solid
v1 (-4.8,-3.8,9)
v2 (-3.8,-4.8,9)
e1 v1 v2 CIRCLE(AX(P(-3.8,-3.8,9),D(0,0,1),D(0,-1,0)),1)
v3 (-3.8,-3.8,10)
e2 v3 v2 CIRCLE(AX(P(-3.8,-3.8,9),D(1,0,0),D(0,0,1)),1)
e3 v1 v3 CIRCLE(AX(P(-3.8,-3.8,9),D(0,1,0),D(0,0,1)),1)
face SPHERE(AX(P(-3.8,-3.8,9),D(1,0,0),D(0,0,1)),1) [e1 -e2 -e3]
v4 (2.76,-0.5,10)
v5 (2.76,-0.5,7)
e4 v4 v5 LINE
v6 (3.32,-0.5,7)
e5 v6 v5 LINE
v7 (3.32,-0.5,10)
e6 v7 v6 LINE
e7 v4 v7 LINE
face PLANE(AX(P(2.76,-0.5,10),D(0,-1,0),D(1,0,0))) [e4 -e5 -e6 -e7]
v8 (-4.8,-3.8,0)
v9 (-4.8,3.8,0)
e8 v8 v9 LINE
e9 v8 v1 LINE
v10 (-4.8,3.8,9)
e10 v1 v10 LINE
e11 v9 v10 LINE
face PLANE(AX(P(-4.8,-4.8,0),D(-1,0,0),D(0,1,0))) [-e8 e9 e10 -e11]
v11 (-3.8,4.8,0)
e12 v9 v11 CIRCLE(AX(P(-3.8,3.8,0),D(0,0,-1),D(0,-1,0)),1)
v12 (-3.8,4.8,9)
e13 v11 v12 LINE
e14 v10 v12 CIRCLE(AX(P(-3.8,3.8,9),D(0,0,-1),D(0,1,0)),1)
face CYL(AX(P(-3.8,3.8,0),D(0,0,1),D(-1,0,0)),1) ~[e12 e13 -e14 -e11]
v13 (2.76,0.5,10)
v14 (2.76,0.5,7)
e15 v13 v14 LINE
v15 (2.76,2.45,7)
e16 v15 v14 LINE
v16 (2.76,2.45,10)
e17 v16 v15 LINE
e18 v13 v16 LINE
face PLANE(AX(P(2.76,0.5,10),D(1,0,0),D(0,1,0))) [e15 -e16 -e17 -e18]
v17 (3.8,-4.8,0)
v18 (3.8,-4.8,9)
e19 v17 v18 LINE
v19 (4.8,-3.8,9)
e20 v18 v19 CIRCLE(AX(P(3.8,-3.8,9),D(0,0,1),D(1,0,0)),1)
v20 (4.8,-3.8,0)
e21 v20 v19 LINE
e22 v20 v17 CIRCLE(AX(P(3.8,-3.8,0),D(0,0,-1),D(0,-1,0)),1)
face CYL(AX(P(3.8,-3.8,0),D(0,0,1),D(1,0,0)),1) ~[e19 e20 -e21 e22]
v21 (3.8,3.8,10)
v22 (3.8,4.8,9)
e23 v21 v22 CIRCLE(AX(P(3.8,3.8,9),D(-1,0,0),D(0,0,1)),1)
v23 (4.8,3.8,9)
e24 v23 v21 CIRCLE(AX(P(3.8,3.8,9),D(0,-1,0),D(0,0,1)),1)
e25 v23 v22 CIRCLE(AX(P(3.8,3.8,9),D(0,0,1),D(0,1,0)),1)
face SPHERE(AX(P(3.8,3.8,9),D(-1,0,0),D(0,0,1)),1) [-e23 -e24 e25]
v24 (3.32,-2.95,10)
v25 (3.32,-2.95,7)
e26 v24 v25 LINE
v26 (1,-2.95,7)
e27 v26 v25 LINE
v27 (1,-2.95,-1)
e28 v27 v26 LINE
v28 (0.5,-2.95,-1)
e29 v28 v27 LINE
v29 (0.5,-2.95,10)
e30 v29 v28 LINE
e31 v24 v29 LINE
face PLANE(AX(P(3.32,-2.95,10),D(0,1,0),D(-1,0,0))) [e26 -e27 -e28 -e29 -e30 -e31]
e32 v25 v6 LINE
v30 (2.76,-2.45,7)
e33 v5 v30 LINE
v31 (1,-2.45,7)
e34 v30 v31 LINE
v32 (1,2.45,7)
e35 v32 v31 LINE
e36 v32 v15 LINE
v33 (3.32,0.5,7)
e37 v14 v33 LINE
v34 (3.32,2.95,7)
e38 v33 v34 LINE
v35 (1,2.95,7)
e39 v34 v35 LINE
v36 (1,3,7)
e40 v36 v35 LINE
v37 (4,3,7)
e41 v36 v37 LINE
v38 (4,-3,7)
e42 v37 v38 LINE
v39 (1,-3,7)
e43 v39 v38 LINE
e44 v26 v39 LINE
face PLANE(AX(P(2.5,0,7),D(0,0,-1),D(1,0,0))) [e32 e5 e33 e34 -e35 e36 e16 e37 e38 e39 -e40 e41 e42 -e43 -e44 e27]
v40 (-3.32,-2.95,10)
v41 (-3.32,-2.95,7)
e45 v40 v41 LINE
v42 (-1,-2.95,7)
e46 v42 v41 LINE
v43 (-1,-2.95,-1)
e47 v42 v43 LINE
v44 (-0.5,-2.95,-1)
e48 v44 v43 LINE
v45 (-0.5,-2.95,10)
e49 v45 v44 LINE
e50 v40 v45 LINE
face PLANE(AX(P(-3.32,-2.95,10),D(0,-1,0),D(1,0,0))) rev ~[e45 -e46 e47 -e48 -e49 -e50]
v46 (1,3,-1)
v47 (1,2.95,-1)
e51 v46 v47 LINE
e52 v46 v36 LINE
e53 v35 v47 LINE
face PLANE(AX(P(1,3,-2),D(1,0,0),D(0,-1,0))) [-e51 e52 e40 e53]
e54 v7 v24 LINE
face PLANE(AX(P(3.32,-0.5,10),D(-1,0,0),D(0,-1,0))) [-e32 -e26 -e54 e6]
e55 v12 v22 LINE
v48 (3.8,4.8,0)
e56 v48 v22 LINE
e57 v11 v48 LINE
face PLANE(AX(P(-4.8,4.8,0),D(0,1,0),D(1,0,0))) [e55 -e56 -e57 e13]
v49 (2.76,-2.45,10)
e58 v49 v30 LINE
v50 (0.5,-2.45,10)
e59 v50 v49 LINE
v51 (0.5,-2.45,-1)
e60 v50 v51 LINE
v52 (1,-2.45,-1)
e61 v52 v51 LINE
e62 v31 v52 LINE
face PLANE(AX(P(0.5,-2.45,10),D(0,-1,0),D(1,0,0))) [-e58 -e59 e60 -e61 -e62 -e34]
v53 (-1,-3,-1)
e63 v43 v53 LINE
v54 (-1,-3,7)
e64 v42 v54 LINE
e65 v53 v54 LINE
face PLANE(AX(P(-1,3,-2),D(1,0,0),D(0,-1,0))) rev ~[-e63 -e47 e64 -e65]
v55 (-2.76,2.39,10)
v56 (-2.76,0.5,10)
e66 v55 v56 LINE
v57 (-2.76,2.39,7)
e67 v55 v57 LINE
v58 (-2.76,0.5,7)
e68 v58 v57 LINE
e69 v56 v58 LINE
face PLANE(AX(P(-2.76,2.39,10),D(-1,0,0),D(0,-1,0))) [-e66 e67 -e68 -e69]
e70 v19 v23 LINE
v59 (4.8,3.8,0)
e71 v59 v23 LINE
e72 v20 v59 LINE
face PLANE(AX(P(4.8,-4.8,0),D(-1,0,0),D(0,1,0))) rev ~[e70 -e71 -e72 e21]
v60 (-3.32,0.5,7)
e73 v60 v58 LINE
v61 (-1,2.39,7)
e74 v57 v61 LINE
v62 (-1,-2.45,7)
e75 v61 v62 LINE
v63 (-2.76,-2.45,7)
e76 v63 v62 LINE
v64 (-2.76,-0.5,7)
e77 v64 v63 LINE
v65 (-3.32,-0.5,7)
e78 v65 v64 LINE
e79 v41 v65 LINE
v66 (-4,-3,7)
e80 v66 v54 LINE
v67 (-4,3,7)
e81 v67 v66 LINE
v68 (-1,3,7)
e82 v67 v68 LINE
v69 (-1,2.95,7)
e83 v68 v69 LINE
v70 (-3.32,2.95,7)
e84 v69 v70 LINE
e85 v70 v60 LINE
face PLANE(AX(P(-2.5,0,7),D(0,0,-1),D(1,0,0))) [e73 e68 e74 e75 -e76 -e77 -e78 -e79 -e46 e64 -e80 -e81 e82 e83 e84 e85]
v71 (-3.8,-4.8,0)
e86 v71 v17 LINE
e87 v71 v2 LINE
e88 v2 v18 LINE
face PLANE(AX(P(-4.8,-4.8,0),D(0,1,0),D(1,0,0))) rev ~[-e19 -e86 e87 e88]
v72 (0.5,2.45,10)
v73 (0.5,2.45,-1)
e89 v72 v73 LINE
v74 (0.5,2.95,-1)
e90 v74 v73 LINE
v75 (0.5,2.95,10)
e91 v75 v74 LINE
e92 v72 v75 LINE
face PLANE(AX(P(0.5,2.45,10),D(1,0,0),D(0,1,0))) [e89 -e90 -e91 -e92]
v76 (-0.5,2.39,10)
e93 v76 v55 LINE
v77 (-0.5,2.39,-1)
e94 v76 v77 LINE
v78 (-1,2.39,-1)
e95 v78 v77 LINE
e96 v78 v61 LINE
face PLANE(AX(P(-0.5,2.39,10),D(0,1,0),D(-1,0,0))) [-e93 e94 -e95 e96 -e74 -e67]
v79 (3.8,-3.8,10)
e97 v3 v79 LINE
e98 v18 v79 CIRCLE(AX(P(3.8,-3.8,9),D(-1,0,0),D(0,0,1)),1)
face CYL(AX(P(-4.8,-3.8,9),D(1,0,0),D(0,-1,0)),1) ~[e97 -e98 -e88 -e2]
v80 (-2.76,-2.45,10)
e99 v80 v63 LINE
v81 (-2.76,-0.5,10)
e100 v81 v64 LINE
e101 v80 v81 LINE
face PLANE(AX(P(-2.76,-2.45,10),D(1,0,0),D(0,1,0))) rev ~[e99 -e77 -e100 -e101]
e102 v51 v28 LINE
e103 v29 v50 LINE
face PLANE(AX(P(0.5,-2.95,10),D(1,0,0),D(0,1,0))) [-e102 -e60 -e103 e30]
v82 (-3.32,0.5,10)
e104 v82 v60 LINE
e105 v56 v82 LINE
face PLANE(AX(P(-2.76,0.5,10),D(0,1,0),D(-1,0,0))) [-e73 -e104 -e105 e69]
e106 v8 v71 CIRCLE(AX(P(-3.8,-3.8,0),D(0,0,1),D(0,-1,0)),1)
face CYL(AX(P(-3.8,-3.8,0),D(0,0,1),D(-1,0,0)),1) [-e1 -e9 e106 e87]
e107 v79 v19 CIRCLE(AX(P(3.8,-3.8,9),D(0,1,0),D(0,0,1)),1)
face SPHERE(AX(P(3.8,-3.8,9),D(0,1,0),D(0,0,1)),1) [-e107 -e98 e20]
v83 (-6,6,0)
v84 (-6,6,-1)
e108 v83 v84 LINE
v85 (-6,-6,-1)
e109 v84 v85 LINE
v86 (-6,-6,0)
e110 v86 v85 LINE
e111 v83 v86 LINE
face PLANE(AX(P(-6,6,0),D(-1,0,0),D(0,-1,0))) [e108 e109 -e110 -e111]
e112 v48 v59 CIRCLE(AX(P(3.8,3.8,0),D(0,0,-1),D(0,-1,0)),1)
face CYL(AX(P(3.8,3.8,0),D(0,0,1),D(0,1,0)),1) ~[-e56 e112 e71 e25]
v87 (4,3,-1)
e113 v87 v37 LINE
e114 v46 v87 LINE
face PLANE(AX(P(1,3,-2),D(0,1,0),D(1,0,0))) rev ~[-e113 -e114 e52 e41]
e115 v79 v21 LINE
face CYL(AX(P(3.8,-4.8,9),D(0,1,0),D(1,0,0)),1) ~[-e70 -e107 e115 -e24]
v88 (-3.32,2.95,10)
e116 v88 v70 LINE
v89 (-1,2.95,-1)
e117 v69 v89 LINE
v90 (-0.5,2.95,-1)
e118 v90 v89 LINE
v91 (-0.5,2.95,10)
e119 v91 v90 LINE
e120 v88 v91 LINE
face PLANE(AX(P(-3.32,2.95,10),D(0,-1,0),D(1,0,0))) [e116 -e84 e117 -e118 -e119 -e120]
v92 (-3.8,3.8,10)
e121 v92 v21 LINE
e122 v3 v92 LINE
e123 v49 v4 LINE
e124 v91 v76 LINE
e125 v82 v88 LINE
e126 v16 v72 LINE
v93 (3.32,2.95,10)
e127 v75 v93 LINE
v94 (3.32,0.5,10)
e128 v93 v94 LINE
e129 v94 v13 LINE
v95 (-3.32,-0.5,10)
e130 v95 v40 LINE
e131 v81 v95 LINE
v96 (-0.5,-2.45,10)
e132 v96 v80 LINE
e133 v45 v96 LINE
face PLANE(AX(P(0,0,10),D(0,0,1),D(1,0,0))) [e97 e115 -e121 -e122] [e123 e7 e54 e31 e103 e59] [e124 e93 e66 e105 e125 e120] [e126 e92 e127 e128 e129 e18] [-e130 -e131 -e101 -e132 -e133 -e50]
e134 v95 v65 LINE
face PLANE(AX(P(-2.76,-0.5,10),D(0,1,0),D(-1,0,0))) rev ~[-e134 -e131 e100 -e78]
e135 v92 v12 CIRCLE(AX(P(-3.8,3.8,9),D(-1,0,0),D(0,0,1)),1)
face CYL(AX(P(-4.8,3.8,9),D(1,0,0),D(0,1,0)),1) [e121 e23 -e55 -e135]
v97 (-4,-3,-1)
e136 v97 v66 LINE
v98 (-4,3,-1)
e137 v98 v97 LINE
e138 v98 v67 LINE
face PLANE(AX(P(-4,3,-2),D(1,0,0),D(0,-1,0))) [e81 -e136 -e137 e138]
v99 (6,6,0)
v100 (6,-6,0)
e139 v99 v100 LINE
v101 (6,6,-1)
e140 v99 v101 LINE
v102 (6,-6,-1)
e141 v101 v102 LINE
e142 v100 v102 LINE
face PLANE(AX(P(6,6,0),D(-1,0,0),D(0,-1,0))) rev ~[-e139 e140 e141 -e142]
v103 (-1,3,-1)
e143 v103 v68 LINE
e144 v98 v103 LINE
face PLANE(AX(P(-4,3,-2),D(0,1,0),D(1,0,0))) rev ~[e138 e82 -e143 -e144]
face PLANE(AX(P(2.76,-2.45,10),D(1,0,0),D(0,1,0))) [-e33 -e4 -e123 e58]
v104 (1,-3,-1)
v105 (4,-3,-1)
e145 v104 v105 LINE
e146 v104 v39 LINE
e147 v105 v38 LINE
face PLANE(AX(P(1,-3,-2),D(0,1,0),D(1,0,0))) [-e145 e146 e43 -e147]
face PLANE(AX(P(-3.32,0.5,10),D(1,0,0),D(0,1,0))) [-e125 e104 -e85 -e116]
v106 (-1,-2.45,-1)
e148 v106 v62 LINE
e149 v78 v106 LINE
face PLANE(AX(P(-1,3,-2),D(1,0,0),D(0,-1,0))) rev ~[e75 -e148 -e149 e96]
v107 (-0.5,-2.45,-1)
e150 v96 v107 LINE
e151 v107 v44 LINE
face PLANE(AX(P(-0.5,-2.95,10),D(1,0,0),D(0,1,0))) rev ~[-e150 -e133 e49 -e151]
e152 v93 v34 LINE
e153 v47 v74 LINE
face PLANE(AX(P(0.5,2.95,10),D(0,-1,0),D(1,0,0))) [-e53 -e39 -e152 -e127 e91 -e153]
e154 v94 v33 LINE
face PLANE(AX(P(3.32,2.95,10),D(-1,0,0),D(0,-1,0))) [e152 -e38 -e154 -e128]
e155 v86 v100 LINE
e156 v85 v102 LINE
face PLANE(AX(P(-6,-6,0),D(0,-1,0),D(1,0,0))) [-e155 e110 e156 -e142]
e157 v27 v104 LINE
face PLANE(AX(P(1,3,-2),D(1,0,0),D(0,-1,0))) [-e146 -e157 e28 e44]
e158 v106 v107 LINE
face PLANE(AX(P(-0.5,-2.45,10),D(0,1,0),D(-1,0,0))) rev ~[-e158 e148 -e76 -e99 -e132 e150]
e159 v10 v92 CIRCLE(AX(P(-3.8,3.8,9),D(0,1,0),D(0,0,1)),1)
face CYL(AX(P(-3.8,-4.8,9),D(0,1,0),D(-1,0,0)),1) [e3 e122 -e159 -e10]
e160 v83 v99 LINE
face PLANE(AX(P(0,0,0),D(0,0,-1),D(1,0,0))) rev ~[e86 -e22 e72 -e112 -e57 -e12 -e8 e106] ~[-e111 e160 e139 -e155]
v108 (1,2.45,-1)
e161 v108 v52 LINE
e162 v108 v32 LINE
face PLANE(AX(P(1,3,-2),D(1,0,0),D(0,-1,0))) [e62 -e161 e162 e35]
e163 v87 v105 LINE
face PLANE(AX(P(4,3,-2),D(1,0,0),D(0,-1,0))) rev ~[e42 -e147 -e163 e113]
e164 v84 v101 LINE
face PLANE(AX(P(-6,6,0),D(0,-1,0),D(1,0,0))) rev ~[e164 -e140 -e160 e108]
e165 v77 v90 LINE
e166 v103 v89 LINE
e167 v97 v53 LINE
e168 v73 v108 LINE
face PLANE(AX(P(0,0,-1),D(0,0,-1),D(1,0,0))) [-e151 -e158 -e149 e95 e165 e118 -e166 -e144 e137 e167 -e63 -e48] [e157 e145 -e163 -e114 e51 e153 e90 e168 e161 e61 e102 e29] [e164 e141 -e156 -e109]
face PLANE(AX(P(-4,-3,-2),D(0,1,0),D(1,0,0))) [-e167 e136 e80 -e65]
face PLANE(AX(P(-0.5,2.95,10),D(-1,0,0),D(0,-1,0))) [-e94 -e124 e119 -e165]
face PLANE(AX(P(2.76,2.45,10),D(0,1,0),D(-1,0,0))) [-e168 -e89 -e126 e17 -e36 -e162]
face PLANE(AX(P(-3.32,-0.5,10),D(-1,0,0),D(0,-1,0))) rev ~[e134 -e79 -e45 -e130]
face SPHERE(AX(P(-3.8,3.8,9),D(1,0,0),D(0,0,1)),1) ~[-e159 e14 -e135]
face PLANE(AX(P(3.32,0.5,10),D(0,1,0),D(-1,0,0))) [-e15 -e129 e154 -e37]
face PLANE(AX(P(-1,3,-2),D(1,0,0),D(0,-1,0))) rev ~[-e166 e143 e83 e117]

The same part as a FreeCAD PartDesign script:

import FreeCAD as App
import Part
import Sketcher
from FreeCAD import Vector
Q = App.Units.Quantity


def edges_at(feature, points):
    """Names of the edges that pass closest to the given points."""
    edges = feature.Shape.Edges
    near = lambda p: min(range(len(edges)), key=lambda i: edges[i].distToShape(Part.Vertex(*p))[0])
    return sorted({f"Edge{near(p) + 1}" for p in points})


def add_polygon(sketch, points):
    """Adds a closed chain of lines whose ends are joined by coincident constraints."""
    first, n = sketch.GeometryCount, len(points)
    for a, b in zip(points, points[1:] + points[:1]):
        sketch.addGeometry(Part.LineSegment(App.Vector(*a, 0), App.Vector(*b, 0)), False)
    for i in range(n):
        sketch.addConstraint(Sketcher.Constraint("Coincident", first + i, 2, first + (i + 1) % n, 1))

doc = App.newDocument("Part")
body = doc.addObject("PartDesign::Body", "Body")

sketch1 = doc.addObject("Sketcher::SketchObject", "Sketch")
body.addObject(sketch1)
sketch1.AttachmentSupport = (doc.XY_Plane, [""])
sketch1.MapMode = "FlatFace"
add_polygon(sketch1, [(-4.8, 4.8), (-4.8, -4.8), (4.8, -4.8), (4.8, 4.8)])
sketch1.addConstraint([
    Sketcher.Constraint("Vertical", 0),
    Sketcher.Constraint("Horizontal", 1),
    Sketcher.Constraint("Vertical", 2),
    Sketcher.Constraint("Horizontal", 3),
    Sketcher.Constraint("Symmetric", 0, 2, 2, 2, -1, 1),
    Sketcher.Constraint("Equal", 3, 0),
    Sketcher.Constraint("DistanceX", 1, 1, 1, 2, Q("9.6 mm")),
])
pad1 = doc.addObject("PartDesign::Pad", "Pad")
body.addObject(pad1)
pad1.Profile = sketch1
pad1.Length = 10

sketch2 = doc.addObject("Sketcher::SketchObject", "Sketch001")
body.addObject(sketch2)
sketch2.AttachmentSupport = (doc.XY_Plane, [""])
sketch2.MapMode = "FlatFace"
add_polygon(sketch2, [(-6, -6), (-6, 6), (6, 6), (6, -6)])
sketch2.addConstraint([
    Sketcher.Constraint("Vertical", 0),
    Sketcher.Constraint("Horizontal", 1),
    Sketcher.Constraint("Vertical", 2),
    Sketcher.Constraint("Horizontal", 3),
    Sketcher.Constraint("Symmetric", 0, 2, 2, 2, -1, 1),
    Sketcher.Constraint("Equal", 3, 0),
    Sketcher.Constraint("DistanceX", 1, 1, 1, 2, Q("12 mm")),
])
pad2 = doc.addObject("PartDesign::Pad", "Pad001")
body.addObject(pad2)
pad2.Profile = sketch2
pad2.Length = 1
pad2.Reversed = True

sketch3 = doc.addObject("Sketcher::SketchObject", "Sketch002")
body.addObject(sketch3)
sketch3.AttachmentSupport = (doc.XY_Plane, [""])
sketch3.MapMode = "FlatFace"
sketch3.AttachmentOffset = App.Placement(Vector(0, 0, -2), App.Rotation())
add_polygon(sketch3, [(-4, -3), (-4, 3), (-1, 3), (-1, -3)])
sketch3.addConstraint([
    Sketcher.Constraint("Vertical", 0),
    Sketcher.Constraint("Horizontal", 1),
    Sketcher.Constraint("Vertical", 2),
    Sketcher.Constraint("Horizontal", 3),
    Sketcher.Constraint("DistanceX", 1, 1, 1, 2, Q("3 mm")),
    Sketcher.Constraint("DistanceY", 0, 1, 0, 2, Q("6 mm")),
    Sketcher.Constraint("DistanceX", 0, 2, -1, 1, Q("4 mm")),
    Sketcher.Constraint("DistanceY", -1, 1, 0, 2, Q("3 mm")),
])
pocket1 = doc.addObject("PartDesign::Pocket", "Pocket")
body.addObject(pocket1)
pocket1.Profile = sketch3
pocket1.Length = 9
pocket1.Reversed = True

sketch4 = doc.addObject("Sketcher::SketchObject", "Sketch003")
body.addObject(sketch4)
sketch4.AttachmentSupport = (doc.XY_Plane, [""])
sketch4.MapMode = "FlatFace"
sketch4.AttachmentOffset = App.Placement(Vector(0, 0, -2), App.Rotation())
add_polygon(sketch4, [(1, -3), (1, 3), (4, 3), (4, -3)])
sketch4.addConstraint([
    Sketcher.Constraint("Vertical", 0),
    Sketcher.Constraint("Horizontal", 1),
    Sketcher.Constraint("Vertical", 2),
    Sketcher.Constraint("Horizontal", 3),
    Sketcher.Constraint("DistanceX", 1, 1, 1, 2, Q("3 mm")),
    Sketcher.Constraint("DistanceY", 0, 1, 0, 2, Q("6 mm")),
    Sketcher.Constraint("DistanceX", -1, 1, 0, 2, Q("1 mm")),
    Sketcher.Constraint("DistanceY", -1, 1, 0, 2, Q("3 mm")),
])
pocket2 = doc.addObject("PartDesign::Pocket", "Pocket001")
body.addObject(pocket2)
pocket2.Profile = sketch4
pocket2.Length = 9
pocket2.Reversed = True

sketch5 = doc.addObject("Sketcher::SketchObject", "Sketch004")
body.addObject(sketch5)
sketch5.AttachmentSupport = (doc.XY_Plane, [""])
sketch5.MapMode = "FlatFace"
sketch5.AttachmentOffset = App.Placement(Vector(0, 0, 10), App.Rotation())
add_polygon(sketch5, [(3.32, -2.95), (3.32, -0.5), (2.76, -0.5), (2.76, -2.45), (0.5, -2.45), (0.5, -2.95)])
sketch5.addConstraint([
    Sketcher.Constraint("Vertical", 0),
    Sketcher.Constraint("Horizontal", 1),
    Sketcher.Constraint("Vertical", 2),
    Sketcher.Constraint("Horizontal", 3),
    Sketcher.Constraint("Vertical", 4),
    Sketcher.Constraint("Horizontal", 5),
    Sketcher.Constraint("DistanceY", 4, 2, 4, 1, Q("0.5 mm")),
    Sketcher.Constraint("DistanceX", 1, 2, 1, 1, Q("0.56 mm")),
    Sketcher.Constraint("DistanceX", 3, 2, 3, 1, Q("2.26 mm")),
    Sketcher.Constraint("DistanceY", 0, 1, 0, 2, Q("2.45 mm")),
    Sketcher.Constraint("DistanceY", 0, 2, -1, 1, Q("0.5 mm")),
    Sketcher.Constraint("DistanceX", -1, 1, 3, 2, Q("0.5 mm")),
])
pocket3 = doc.addObject("PartDesign::Pocket", "Pocket002")
body.addObject(pocket3)
pocket3.Profile = sketch5
pocket3.Type = "ThroughAll"

sketch6 = doc.addObject("Sketcher::SketchObject", "Sketch005")
body.addObject(sketch6)
sketch6.AttachmentSupport = (doc.XY_Plane, [""])
sketch6.MapMode = "FlatFace"
sketch6.AttachmentOffset = App.Placement(Vector(0, 0, 10), App.Rotation())
add_polygon(sketch6, [(-3.32, -0.5), (-3.32, -2.95), (-0.5, -2.95), (-0.5, -2.45), (-2.76, -2.45), (-2.76, -0.5)])
sketch6.addConstraint([
    Sketcher.Constraint("Vertical", 0),
    Sketcher.Constraint("Horizontal", 1),
    Sketcher.Constraint("Vertical", 2),
    Sketcher.Constraint("Horizontal", 3),
    Sketcher.Constraint("Vertical", 4),
    Sketcher.Constraint("Horizontal", 5),
    Sketcher.Constraint("DistanceY", 2, 1, 2, 2, Q("0.5 mm")),
    Sketcher.Constraint("DistanceX", 1, 1, 1, 2, Q("2.82 mm")),
    Sketcher.Constraint("DistanceX", 3, 2, 3, 1, Q("2.26 mm")),
    Sketcher.Constraint("DistanceY", 0, 2, 0, 1, Q("2.45 mm")),
    Sketcher.Constraint("DistanceX", 1, 2, -1, 1, Q("0.5 mm")),
    Sketcher.Constraint("DistanceY", 4, 2, -1, 1, Q("0.5 mm")),
])
pocket4 = doc.addObject("PartDesign::Pocket", "Pocket003")
body.addObject(pocket4)
pocket4.Profile = sketch6
pocket4.Type = "ThroughAll"

sketch7 = doc.addObject("Sketcher::SketchObject", "Sketch006")
body.addObject(sketch7)
sketch7.AttachmentSupport = (doc.XY_Plane, [""])
sketch7.MapMode = "FlatFace"
sketch7.AttachmentOffset = App.Placement(Vector(0, 0, 10), App.Rotation())
add_polygon(sketch7, [(-3.32, 0.5), (-2.76, 0.5), (-2.76, 2.39), (-0.5, 2.39), (-0.5, 2.95), (-3.32, 2.95)])
sketch7.addConstraint([
    Sketcher.Constraint("Horizontal", 0),
    Sketcher.Constraint("Vertical", 1),
    Sketcher.Constraint("Horizontal", 2),
    Sketcher.Constraint("Vertical", 3),
    Sketcher.Constraint("Horizontal", 4),
    Sketcher.Constraint("Vertical", 5),
    Sketcher.Constraint("Equal", 0, 3),
    Sketcher.Constraint("DistanceX", 0, 1, 0, 2, Q("0.56 mm")),
    Sketcher.Constraint("DistanceX", 2, 1, 2, 2, Q("2.26 mm")),
    Sketcher.Constraint("DistanceY", 1, 1, 1, 2, Q("1.89 mm")),
    Sketcher.Constraint("DistanceY", -1, 1, 0, 2, Q("0.5 mm")),
    Sketcher.Constraint("DistanceX", 2, 2, -1, 1, Q("0.5 mm")),
])
pocket5 = doc.addObject("PartDesign::Pocket", "Pocket004")
body.addObject(pocket5)
pocket5.Profile = sketch7
pocket5.Type = "ThroughAll"

sketch8 = doc.addObject("Sketcher::SketchObject", "Sketch007")
body.addObject(sketch8)
sketch8.AttachmentSupport = (doc.XY_Plane, [""])
sketch8.MapMode = "FlatFace"
sketch8.AttachmentOffset = App.Placement(Vector(0, 0, 10), App.Rotation())
add_polygon(sketch8, [(3.32, 2.95), (0.5, 2.95), (0.5, 2.45), (2.76, 2.45), (2.76, 0.5), (3.32, 0.5)])
sketch8.addConstraint([
    Sketcher.Constraint("Horizontal", 0),
    Sketcher.Constraint("Vertical", 1),
    Sketcher.Constraint("Horizontal", 2),
    Sketcher.Constraint("Vertical", 3),
    Sketcher.Constraint("Horizontal", 4),
    Sketcher.Constraint("Vertical", 5),
    Sketcher.Constraint("DistanceY", 1, 2, 1, 1, Q("0.5 mm")),
    Sketcher.Constraint("DistanceX", 0, 2, 0, 1, Q("2.82 mm")),
    Sketcher.Constraint("DistanceX", 2, 1, 2, 2, Q("2.26 mm")),
    Sketcher.Constraint("DistanceY", 3, 2, 3, 1, Q("1.95 mm")),
    Sketcher.Constraint("DistanceX", -1, 1, 0, 2, Q("0.5 mm")),
    Sketcher.Constraint("DistanceY", -1, 1, 3, 2, Q("0.5 mm")),
])
pocket6 = doc.addObject("PartDesign::Pocket", "Pocket005")
body.addObject(pocket6)
pocket6.Profile = sketch8
pocket6.Type = "ThroughAll"
doc.recompute()

fillet = doc.addObject("PartDesign::Fillet", "Fillet")
body.addObject(fillet)
fillet.Base = (pocket6, edges_at(pocket6, [
    (0, 4.8, 10),
    (4.8, 0, 10),
    (0, -4.8, 10),
    (4.8, -4.8, 5),
    (4.8, 4.8, 5),
    (-4.8, 0, 10),
    (-4.8, -4.8, 5),
    (-4.8, 4.8, 5),
]))
fillet.Radius = 1

doc.recompute()
